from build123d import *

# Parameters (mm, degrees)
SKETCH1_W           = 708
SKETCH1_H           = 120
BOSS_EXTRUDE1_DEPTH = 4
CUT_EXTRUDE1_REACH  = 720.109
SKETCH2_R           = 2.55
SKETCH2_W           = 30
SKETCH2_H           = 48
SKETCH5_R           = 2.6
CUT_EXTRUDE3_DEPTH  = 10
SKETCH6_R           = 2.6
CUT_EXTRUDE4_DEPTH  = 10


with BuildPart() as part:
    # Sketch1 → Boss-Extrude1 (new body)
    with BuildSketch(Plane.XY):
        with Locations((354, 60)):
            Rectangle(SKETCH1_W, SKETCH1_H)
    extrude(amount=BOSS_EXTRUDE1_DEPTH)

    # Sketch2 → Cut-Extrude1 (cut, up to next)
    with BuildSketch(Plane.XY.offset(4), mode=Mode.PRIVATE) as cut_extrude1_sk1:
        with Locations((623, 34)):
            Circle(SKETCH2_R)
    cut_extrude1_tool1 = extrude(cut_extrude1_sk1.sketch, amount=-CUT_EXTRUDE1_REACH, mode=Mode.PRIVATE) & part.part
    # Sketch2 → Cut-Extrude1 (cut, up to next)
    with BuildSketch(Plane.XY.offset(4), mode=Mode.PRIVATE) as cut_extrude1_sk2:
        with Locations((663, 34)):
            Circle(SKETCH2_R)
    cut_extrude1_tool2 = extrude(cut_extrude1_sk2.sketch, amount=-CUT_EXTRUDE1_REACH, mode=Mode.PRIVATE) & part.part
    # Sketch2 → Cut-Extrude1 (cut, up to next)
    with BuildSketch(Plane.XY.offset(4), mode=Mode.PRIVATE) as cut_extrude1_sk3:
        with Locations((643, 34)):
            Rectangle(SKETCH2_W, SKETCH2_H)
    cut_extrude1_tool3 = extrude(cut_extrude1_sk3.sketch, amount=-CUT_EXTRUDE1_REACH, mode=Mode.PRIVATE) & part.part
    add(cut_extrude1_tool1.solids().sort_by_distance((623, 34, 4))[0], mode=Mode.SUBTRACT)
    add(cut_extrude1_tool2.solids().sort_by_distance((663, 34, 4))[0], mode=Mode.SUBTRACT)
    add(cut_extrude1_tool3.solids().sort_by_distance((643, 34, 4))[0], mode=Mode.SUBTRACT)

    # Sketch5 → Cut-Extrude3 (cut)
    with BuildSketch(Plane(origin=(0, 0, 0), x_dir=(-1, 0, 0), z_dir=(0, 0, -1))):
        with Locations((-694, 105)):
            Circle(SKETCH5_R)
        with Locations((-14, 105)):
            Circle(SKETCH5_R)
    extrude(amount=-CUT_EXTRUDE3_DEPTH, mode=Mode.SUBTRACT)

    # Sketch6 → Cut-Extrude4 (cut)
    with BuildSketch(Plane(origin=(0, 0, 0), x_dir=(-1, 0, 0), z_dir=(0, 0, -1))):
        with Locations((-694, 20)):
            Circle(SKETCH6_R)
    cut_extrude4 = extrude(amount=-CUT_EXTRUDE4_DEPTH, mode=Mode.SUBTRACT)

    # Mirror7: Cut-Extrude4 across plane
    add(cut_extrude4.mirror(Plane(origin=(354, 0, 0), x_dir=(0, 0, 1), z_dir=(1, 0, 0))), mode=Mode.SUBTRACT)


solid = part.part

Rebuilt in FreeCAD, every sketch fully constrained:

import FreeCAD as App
import Part
import Sketcher

doc = App.newDocument("Part")
params = doc.addObject("Spreadsheet::Sheet", "Params")
for row, (alias, value) in enumerate([
    ("sketch1_width", "708 mm"),
    ("sketch1_height", "120 mm"),
    ("pad1_length", "4 mm"),
    ("sketch2_diameter", "5.1 mm"),
    ("sketch3_diameter", "5.1 mm"),
    ("sketch4_width", "30 mm"),
    ("sketch4_height", "48 mm"),
    ("sketch5_diameter", "5.2 mm"),
    ("pocket4_length", "10 mm"),
    ("sketch6_diameter", "5.2 mm"),
    ("pocket5_length", "10 mm"),
], start=1):
    params.set(f"A{row}", alias)
    params.set(f"B{row}", "=" + value)
    params.setAlias(f"B{row}", alias)

body = doc.addObject("PartDesign::Body", "Body")

# Sketch on XY plane
sketch1 = body.newObject("Sketcher::SketchObject", "Sketch")
sketch1.AttachmentSupport = (doc.getObject("XY_Plane"), [""])
sketch1.MapMode = "FlatFace"
sketch1.addGeometry([
    Part.LineSegment(App.Vector(0, 120, 0), App.Vector(0, 0, 0)),
    Part.LineSegment(App.Vector(0, 0, 0), App.Vector(708, 0, 0)),
    Part.LineSegment(App.Vector(708, 0, 0), App.Vector(708, 120, 0)),
    Part.LineSegment(App.Vector(708, 120, 0), App.Vector(0, 120, 0)),
], False)
sketch1.addConstraint([
    Sketcher.Constraint("Coincident", 0, 2, 1, 1),
    Sketcher.Constraint("Coincident", 1, 2, 2, 1),
    Sketcher.Constraint("Coincident", 2, 2, 3, 1),
    Sketcher.Constraint("Coincident", 3, 2, 0, 1),
    Sketcher.Constraint("Vertical", 0),
    Sketcher.Constraint("Horizontal", 1),
    Sketcher.Constraint("Vertical", 2),
    Sketcher.Constraint("Horizontal", 3),
    Sketcher.Constraint("Coincident", 0, 2, -1, 1),
    Sketcher.Constraint("DistanceX", 1, 1, 1, 2, 708.0),
    Sketcher.Constraint("DistanceY", 0, 2, 0, 1, 120.0),
])
sketch1.setExpression("Constraints[9]", "Params.sketch1_width")
sketch1.setExpression("Constraints[10]", "Params.sketch1_height")
pad1 = body.newObject("PartDesign::Pad", "Pad")
pad1.Profile = sketch1
pad1.setExpression("Length", "Params.pad1_length")

# Sketch on XY plane
sketch2 = body.newObject("Sketcher::SketchObject", "Sketch001")
sketch2.AttachmentSupport = (doc.getObject("XY_Plane"), [""])
sketch2.MapMode = "FlatFace"
sketch2.AttachmentOffset = App.Placement(App.Vector(0, 0, 4), App.Rotation())
sketch2.addGeometry(Part.Circle(App.Vector(623, 34, 0), App.Vector(0, 0, 1), 2.5), False)
sketch2.addConstraint([
    Sketcher.Constraint("Diameter", 0, 5.1),
    Sketcher.Constraint("DistanceX", -1, 1, 0, 3, 623.0),
    Sketcher.Constraint("DistanceY", -1, 1, 0, 3, 34.0),
])
sketch2.setExpression("Constraints[0]", "Params.sketch2_diameter")
pocket1 = body.newObject("PartDesign::Pocket", "Pocket")
pocket1.Profile = sketch2
pocket1.Type = "UpToFirst"

# Sketch on XY plane
sketch3 = body.newObject("Sketcher::SketchObject", "Sketch002")
sketch3.AttachmentSupport = (doc.getObject("XY_Plane"), [""])
sketch3.MapMode = "FlatFace"
sketch3.AttachmentOffset = App.Placement(App.Vector(0, 0, 4), App.Rotation())
sketch3.addGeometry(Part.Circle(App.Vector(663, 34, 0), App.Vector(0, 0, 1), 2.5), False)
sketch3.addConstraint([
    Sketcher.Constraint("Diameter", 0, 5.1),
    Sketcher.Constraint("DistanceX", -1, 1, 0, 3, 663.0),
    Sketcher.Constraint("DistanceY", -1, 1, 0, 3, 34.0),
])
sketch3.setExpression("Constraints[0]", "Params.sketch3_diameter")
pocket2 = body.newObject("PartDesign::Pocket", "Pocket001")
pocket2.Profile = sketch3
pocket2.Type = "UpToFirst"

# Sketch on XY plane
sketch4 = body.newObject("Sketcher::SketchObject", "Sketch003")
sketch4.AttachmentSupport = (doc.getObject("XY_Plane"), [""])
sketch4.MapMode = "FlatFace"
sketch4.AttachmentOffset = App.Placement(App.Vector(0, 0, 4), App.Rotation())
sketch4.addGeometry([
    Part.LineSegment(App.Vector(628, 58, 0), App.Vector(628, 10, 0)),
    Part.LineSegment(App.Vector(628, 10, 0), App.Vector(658, 10, 0)),
    Part.LineSegment(App.Vector(658, 10, 0), App.Vector(658, 58, 0)),
    Part.LineSegment(App.Vector(658, 58, 0), App.Vector(628, 58, 0)),
], False)
sketch4.addConstraint([
    Sketcher.Constraint("Coincident", 0, 2, 1, 1),
    Sketcher.Constraint("Coincident", 1, 2, 2, 1),
    Sketcher.Constraint("Coincident", 2, 2, 3, 1),
    Sketcher.Constraint("Coincident", 3, 2, 0, 1),
    Sketcher.Constraint("Vertical", 0),
    Sketcher.Constraint("Horizontal", 1),
    Sketcher.Constraint("Vertical", 2),
    Sketcher.Constraint("Horizontal", 3),
    Sketcher.Constraint("DistanceX", 1, 1, 1, 2, 30.0),
    Sketcher.Constraint("DistanceY", 0, 2, 0, 1, 48.0),
    Sketcher.Constraint("DistanceX", -1, 1, 0, 2, 628.0),
    Sketcher.Constraint("DistanceY", -1, 1, 0, 2, 10.0),
])
sketch4.setExpression("Constraints[8]", "Params.sketch4_width")
sketch4.setExpression("Constraints[9]", "Params.sketch4_height")
pocket3 = body.newObject("PartDesign::Pocket", "Pocket002")
pocket3.Profile = sketch4
pocket3.Type = "UpToFirst"

# Sketch on XY plane
sketch5 = body.newObject("Sketcher::SketchObject", "Sketch004")
sketch5.AttachmentSupport = (doc.getObject("XY_Plane"), [""])
sketch5.MapMode = "FlatFace"
sketch5.addGeometry([
    Part.Circle(App.Vector(694, 105, 0), App.Vector(0, 0, 1), 2.6),
    Part.Circle(App.Vector(14, 105, 0), App.Vector(0, 0, 1), 2.6),
], False)
sketch5.addConstraint([
    Sketcher.Constraint("Equal", 0, 1),
    Sketcher.Constraint("Horizontal", 0, 3, 1, 3),
    Sketcher.Constraint("Diameter", 0, 5.2),
    Sketcher.Constraint("DistanceX", -1, 1, 0, 3, 694.0),
    Sketcher.Constraint("DistanceY", -1, 1, 0, 3, 105.0),
    Sketcher.Constraint("DistanceX", -1, 1, 1, 3, 14.0),
])
sketch5.setExpression("Constraints[2]", "Params.sketch5_diameter")
pocket4 = body.newObject("PartDesign::Pocket", "Pocket003")
pocket4.Profile = sketch5
pocket4.setExpression("Length", "Params.pocket4_length")
pocket4.Reversed = True

# Sketch on XY plane
sketch6 = body.newObject("Sketcher::SketchObject", "Sketch005")
sketch6.AttachmentSupport = (doc.getObject("XY_Plane"), [""])
sketch6.MapMode = "FlatFace"
sketch6.addGeometry(Part.Circle(App.Vector(694, 20, 0), App.Vector(0, 0, 1), 2.6), False)
sketch6.addConstraint([
    Sketcher.Constraint("Diameter", 0, 5.2),
    Sketcher.Constraint("DistanceX", -1, 1, 0, 3, 694.0),
    Sketcher.Constraint("DistanceY", -1, 1, 0, 3, 20.0),
])
sketch6.setExpression("Constraints[0]", "Params.sketch6_diameter")
pocket5 = body.newObject("PartDesign::Pocket", "Pocket004")
pocket5.Profile = sketch6
pocket5.setExpression("Length", "Params.pocket5_length")
pocket5.Reversed = True
doc.recompute()

datumplane = body.newObject("PartDesign::Plane", "DatumPlane")
datumplane.AttachmentSupport = (doc.getObject("YZ_Plane"), [""])
datumplane.MapMode = "FlatFace"
datumplane.AttachmentOffset = App.Placement(App.Vector(0, 0, 354), App.Rotation())
mirrored = body.newObject("PartDesign::Mirrored", "Mirrored")
mirrored.Originals = [pocket5]
mirrored.MirrorPlane = (datumplane, [""])
body.Tip = mirrored

doc.recompute()
